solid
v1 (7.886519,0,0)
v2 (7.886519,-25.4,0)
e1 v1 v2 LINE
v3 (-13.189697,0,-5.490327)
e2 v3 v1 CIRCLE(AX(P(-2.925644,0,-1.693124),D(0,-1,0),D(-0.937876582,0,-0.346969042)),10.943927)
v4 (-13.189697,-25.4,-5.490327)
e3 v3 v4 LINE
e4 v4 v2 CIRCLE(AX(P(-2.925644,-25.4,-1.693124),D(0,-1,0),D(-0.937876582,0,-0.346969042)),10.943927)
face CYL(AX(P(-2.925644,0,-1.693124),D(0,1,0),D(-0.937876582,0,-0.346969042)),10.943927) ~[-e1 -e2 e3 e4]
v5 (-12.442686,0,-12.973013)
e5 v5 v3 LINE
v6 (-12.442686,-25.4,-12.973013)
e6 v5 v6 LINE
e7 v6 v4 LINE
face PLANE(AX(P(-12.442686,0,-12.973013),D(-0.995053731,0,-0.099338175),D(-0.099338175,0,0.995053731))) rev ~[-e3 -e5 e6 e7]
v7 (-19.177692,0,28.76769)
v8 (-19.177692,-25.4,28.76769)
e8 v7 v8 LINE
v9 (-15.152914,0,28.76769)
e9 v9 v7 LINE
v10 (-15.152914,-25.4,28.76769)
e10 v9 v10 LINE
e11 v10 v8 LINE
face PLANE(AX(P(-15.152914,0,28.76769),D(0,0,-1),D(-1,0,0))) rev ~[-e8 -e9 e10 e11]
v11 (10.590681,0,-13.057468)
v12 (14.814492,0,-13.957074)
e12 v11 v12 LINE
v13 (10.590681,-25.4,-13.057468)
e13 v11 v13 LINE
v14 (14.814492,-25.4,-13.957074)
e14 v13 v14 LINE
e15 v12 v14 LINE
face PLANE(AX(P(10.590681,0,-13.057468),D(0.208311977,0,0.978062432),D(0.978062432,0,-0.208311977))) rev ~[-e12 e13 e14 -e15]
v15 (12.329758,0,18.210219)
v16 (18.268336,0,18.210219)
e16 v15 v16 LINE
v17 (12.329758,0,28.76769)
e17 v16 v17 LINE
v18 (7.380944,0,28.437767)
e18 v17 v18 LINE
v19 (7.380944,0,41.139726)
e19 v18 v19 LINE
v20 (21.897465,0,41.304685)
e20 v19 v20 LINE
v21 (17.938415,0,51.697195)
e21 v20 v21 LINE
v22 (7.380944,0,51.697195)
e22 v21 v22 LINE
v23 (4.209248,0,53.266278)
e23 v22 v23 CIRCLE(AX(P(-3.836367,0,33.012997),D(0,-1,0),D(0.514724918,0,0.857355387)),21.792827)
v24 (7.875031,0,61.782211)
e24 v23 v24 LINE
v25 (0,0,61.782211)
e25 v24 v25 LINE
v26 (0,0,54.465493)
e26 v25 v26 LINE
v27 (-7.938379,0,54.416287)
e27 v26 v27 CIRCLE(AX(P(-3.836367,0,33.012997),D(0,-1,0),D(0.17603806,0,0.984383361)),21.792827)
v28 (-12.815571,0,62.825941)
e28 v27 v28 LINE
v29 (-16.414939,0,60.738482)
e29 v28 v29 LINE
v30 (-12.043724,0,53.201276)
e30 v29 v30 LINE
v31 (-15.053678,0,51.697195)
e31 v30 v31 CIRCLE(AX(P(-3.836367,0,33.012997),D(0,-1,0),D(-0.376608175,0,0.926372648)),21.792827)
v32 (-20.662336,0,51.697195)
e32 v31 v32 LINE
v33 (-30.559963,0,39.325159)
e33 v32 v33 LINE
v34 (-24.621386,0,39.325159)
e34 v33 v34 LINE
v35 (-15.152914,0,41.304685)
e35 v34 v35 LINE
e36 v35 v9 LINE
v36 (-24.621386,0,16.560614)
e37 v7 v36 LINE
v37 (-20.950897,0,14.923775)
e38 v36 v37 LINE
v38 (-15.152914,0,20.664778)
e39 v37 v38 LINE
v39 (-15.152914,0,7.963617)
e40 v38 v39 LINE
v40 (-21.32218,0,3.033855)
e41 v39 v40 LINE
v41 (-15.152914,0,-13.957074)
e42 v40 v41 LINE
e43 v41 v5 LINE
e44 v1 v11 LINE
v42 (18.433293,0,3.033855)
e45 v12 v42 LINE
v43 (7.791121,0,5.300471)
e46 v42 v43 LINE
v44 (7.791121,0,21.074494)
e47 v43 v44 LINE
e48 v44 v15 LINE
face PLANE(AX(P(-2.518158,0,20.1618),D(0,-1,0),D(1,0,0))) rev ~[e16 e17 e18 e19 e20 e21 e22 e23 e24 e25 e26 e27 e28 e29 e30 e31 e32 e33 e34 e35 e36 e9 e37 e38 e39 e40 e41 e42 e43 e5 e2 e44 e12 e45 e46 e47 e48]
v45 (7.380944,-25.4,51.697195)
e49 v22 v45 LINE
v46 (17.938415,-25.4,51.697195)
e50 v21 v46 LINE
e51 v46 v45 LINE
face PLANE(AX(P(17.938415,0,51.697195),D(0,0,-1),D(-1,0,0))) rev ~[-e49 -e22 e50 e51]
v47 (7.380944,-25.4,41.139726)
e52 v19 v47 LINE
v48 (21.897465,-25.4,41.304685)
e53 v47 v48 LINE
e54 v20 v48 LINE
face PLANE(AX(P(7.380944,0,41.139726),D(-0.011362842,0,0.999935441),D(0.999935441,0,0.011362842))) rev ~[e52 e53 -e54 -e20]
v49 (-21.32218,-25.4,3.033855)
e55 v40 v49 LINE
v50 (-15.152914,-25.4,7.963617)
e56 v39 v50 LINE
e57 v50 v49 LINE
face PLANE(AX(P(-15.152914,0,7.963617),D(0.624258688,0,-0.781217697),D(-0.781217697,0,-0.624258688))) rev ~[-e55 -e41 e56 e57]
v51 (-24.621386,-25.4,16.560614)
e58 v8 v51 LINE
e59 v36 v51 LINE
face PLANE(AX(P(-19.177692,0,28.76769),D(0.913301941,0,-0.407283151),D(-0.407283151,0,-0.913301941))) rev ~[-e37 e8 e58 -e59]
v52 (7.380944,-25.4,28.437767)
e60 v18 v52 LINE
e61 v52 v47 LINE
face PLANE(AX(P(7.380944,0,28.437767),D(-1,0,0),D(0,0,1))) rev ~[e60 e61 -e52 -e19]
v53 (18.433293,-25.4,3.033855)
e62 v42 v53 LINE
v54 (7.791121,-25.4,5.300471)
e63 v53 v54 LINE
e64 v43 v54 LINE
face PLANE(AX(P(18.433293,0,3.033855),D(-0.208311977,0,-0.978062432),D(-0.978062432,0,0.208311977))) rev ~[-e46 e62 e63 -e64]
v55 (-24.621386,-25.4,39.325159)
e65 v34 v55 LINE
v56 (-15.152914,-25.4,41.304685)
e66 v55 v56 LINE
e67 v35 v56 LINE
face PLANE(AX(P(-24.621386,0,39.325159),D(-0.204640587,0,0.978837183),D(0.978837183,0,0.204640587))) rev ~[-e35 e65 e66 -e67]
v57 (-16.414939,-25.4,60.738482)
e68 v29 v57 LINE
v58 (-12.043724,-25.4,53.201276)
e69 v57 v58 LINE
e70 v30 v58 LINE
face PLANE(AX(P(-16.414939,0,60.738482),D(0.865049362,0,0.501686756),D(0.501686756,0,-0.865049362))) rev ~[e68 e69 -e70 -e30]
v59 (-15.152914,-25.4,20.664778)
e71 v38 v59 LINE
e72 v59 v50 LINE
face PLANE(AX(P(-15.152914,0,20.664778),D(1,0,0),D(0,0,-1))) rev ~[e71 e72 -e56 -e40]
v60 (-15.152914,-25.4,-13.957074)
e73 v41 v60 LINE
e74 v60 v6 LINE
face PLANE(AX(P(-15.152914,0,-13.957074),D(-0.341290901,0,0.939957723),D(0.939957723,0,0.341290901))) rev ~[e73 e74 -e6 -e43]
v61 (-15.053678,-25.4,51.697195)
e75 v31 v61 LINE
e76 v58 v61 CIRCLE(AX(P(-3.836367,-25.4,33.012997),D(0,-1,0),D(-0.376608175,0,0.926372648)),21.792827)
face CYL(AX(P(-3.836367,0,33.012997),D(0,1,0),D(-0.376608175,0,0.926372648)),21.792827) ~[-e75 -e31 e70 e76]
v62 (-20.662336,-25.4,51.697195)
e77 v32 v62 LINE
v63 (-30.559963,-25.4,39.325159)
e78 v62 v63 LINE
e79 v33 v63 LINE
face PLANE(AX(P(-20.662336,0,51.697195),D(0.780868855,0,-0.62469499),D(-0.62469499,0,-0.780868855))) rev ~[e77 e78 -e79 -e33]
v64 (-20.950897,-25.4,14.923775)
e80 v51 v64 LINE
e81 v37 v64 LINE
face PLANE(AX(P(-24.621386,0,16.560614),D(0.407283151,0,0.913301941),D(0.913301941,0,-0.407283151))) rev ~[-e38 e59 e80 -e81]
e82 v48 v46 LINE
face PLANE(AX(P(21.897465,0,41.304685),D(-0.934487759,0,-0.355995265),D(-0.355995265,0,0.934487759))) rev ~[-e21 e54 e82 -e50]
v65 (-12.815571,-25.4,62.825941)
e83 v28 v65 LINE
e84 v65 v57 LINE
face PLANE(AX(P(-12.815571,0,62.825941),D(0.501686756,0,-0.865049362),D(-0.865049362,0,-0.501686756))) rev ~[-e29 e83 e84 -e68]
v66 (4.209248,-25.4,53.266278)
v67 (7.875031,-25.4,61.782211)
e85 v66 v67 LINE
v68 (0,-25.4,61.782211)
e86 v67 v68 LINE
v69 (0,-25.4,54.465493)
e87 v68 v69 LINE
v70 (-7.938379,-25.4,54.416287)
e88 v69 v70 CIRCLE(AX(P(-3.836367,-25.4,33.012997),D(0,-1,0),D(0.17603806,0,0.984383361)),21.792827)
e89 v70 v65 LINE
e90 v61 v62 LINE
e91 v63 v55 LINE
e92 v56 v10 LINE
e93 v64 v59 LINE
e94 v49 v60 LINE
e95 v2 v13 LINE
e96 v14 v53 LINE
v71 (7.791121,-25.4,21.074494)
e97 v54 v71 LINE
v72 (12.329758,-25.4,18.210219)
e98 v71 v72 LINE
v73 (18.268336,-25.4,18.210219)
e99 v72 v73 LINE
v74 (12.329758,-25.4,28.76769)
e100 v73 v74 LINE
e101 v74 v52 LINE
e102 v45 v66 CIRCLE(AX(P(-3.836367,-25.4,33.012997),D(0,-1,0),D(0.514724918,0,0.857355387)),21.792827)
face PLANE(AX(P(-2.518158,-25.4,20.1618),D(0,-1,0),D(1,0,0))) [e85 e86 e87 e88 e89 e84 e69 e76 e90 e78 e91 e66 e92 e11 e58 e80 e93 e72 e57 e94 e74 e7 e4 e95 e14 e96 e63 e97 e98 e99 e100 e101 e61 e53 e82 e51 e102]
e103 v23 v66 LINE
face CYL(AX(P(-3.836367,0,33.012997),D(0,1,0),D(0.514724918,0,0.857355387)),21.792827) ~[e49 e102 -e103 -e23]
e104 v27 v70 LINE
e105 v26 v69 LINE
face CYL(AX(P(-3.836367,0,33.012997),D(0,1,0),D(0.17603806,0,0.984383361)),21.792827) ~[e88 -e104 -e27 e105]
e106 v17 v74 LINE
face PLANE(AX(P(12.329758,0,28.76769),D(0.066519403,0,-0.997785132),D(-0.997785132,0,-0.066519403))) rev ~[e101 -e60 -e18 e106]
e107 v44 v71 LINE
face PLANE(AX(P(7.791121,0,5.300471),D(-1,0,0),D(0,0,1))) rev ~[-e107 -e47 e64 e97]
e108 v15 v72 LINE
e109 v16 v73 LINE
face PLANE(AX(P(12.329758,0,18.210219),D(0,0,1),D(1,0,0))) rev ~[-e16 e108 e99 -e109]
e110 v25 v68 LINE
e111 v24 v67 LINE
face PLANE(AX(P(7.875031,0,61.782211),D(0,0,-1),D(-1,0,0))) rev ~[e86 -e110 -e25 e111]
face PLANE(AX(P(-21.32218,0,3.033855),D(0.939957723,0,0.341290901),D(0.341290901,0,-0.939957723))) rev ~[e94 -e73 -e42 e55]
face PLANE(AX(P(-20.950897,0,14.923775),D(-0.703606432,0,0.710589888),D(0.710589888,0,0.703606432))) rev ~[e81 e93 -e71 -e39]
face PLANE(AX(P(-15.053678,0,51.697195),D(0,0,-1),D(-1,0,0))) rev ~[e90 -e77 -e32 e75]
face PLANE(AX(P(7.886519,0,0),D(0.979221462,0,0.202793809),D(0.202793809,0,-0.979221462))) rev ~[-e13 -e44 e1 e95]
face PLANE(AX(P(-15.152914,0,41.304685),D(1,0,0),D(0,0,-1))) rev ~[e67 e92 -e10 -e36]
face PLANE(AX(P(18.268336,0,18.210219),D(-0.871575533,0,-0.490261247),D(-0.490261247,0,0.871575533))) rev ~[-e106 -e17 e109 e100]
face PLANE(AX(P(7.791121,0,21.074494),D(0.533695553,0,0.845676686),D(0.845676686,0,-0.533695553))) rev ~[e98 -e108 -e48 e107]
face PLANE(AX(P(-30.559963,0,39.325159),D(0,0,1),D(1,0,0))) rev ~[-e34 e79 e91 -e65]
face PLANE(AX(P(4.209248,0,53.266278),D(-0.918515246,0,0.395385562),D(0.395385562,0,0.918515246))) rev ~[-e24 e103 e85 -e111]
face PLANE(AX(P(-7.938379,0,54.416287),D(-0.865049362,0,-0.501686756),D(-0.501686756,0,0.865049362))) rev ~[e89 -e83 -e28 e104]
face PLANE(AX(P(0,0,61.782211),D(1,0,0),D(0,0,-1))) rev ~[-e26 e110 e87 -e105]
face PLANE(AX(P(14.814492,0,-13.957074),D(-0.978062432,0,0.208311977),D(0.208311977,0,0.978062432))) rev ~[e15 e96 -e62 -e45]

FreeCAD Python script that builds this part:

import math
import FreeCAD as App
import Part
import Sketcher

V = App.Vector
Q = App.Units.Quantity

doc = App.newDocument("Part")
body = doc.addObject("PartDesign::Body", "Body")

# Sketch on XZ plane
sketch1 = body.newObject("Sketcher::SketchObject", "Sketch")
sketch1.AttachmentSupport = (doc.getObject("XZ_Plane"), [""])
sketch1.MapMode = "FlatFace"
sketch1.addGeometry(Part.LineSegment(V(-12.4, -13, 0), V(-13.2, -5.5, 0)), False)
sketch1.addGeometry(Part.ArcOfCircle(Part.Circle(V(-2.9, -1.7, 0), V(0, 0, 1), 10.9), math.radians(-160), math.radians(9)), False)
sketch1.addGeometry(Part.LineSegment(V(7.9, 0, 0), V(10.6, -13.1, 0)), False)
sketch1.addGeometry(Part.LineSegment(V(10.6, -13.1, 0), V(14.8, -14, 0)), False)
sketch1.addGeometry(Part.LineSegment(V(14.8, -14, 0), V(18.4, 3, 0)), False)
sketch1.addGeometry(Part.LineSegment(V(18.4, 3, 0), V(7.8, 5.3, 0)), False)
sketch1.addGeometry(Part.LineSegment(V(7.8, 5.3, 0), V(7.8, 21.1, 0)), False)
sketch1.addGeometry(Part.LineSegment(V(7.8, 21.1, 0), V(12.3, 18.2, 0)), False)
sketch1.addGeometry(Part.LineSegment(V(12.3, 18.2, 0), V(18.3, 18.2, 0)), False)
sketch1.addGeometry(Part.LineSegment(V(18.3, 18.2, 0), V(12.3, 28.8, 0)), False)
sketch1.addGeometry(Part.LineSegment(V(12.3, 28.8, 0), V(7.4, 28.4, 0)), False)
sketch1.addGeometry(Part.LineSegment(V(7.4, 28.4, 0), V(7.4, 41.1, 0)), False)
sketch1.addGeometry(Part.LineSegment(V(7.4, 41.1, 0), V(21.9, 41.3, 0)), False)
sketch1.addGeometry(Part.LineSegment(V(21.9, 41.3, 0), V(17.9, 51.7, 0)), False)
sketch1.addGeometry(Part.LineSegment(V(17.9, 51.7, 0), V(7.4, 51.7, 0)), False)
sketch1.addGeometry(Part.ArcOfCircle(Part.Circle(V(-3.8, 33, 0), V(0, 0, 1), 21.8), math.radians(59.02), math.radians(68.33)), False)
sketch1.addGeometry(Part.LineSegment(V(4.2, 53.3, 0), V(7.9, 61.8, 0)), False)
sketch1.addGeometry(Part.LineSegment(V(7.9, 61.8, 0), V(0, 61.8, 0)), False)
sketch1.addGeometry(Part.LineSegment(V(0, 61.8, 0), V(0, 54.5, 0)), False)
sketch1.addGeometry(Part.ArcOfCircle(Part.Circle(V(-3.8, 33, 0), V(0, 0, 1), 21.8), math.radians(80), math.radians(101)), False)
sketch1.addGeometry(Part.LineSegment(V(-7.9, 54.4, 0), V(-12.8, 62.8, 0)), False)
sketch1.addGeometry(Part.LineSegment(V(-12.8, 62.8, 0), V(-16.4, 60.7, 0)), False)
sketch1.addGeometry(Part.LineSegment(V(-16.4, 60.7, 0), V(-12, 53.2, 0)), False)
sketch1.addGeometry(Part.ArcOfCircle(Part.Circle(V(-3.8, 33, 0), V(0, 0, 1), 21.8), math.radians(112.12), math.radians(120.98)), False)
sketch1.addGeometry(Part.LineSegment(V(-15.1, 51.7, 0), V(-20.7, 51.7, 0)), False)
sketch1.addGeometry(Part.LineSegment(V(-20.7, 51.7, 0), V(-30.6, 39.3, 0)), False)
sketch1.addGeometry(Part.LineSegment(V(-30.6, 39.3, 0), V(-24.6, 39.3, 0)), False)
sketch1.addGeometry(Part.LineSegment(V(-24.6, 39.3, 0), V(-15.2, 41.3, 0)), False)
sketch1.addGeometry(Part.LineSegment(V(-15.2, 41.3, 0), V(-15.2, 28.8, 0)), False)
sketch1.addGeometry(Part.LineSegment(V(-15.2, 28.8, 0), V(-19.2, 28.8, 0)), False)
sketch1.addGeometry(Part.LineSegment(V(-19.2, 28.8, 0), V(-24.6, 16.6, 0)), False)
sketch1.addGeometry(Part.LineSegment(V(-24.6, 16.6, 0), V(-21, 14.9, 0)), False)
sketch1.addGeometry(Part.LineSegment(V(-21, 14.9, 0), V(-15.2, 20.7, 0)), False)
sketch1.addGeometry(Part.LineSegment(V(-15.2, 20.7, 0), V(-15.2, 8, 0)), False)
sketch1.addGeometry(Part.LineSegment(V(-15.2, 8, 0), V(-21.3, 3, 0)), False)
sketch1.addGeometry(Part.LineSegment(V(-21.3, 3, 0), V(-15.2, -14, 0)), False)
sketch1.addGeometry(Part.LineSegment(V(-15.2, -14, 0), V(-12.4, -13, 0)), False)
sketch1.addConstraint(Sketcher.Constraint("Coincident", 0, 2, 1, 1))
sketch1.addConstraint(Sketcher.Constraint("Coincident", 1, 2, 2, 1))
sketch1.addConstraint(Sketcher.Constraint("Coincident", 2, 2, 3, 1))
sketch1.addConstraint(Sketcher.Constraint("Coincident", 3, 2, 4, 1))
sketch1.addConstraint(Sketcher.Constraint("Coincident", 4, 2, 5, 1))
sketch1.addConstraint(Sketcher.Constraint("Coincident", 5, 2, 6, 1))
sketch1.addConstraint(Sketcher.Constraint("Coincident", 6, 2, 7, 1))
sketch1.addConstraint(Sketcher.Constraint("Coincident", 7, 2, 8, 1))
sketch1.addConstraint(Sketcher.Constraint("Coincident", 8, 2, 9, 1))
sketch1.addConstraint(Sketcher.Constraint("Coincident", 9, 2, 10, 1))
sketch1.addConstraint(Sketcher.Constraint("Coincident", 10, 2, 11, 1))
sketch1.addConstraint(Sketcher.Constraint("Coincident", 11, 2, 12, 1))
sketch1.addConstraint(Sketcher.Constraint("Coincident", 12, 2, 13, 1))
sketch1.addConstraint(Sketcher.Constraint("Coincident", 13, 2, 14, 1))
sketch1.addConstraint(Sketcher.Constraint("Coincident", 14, 2, 15, 1))
sketch1.addConstraint(Sketcher.Constraint("Coincident", 15, 2, 16, 1))
sketch1.addConstraint(Sketcher.Constraint("Coincident", 16, 2, 17, 1))
sketch1.addConstraint(Sketcher.Constraint("Coincident", 17, 2, 18, 1))
sketch1.addConstraint(Sketcher.Constraint("Coincident", 18, 2, 19, 1))
sketch1.addConstraint(Sketcher.Constraint("Coincident", 19, 2, 20, 1))
sketch1.addConstraint(Sketcher.Constraint("Coincident", 20, 2, 21, 1))
sketch1.addConstraint(Sketcher.Constraint("Coincident", 21, 2, 22, 1))
sketch1.addConstraint(Sketcher.Constraint("Coincident", 22, 2, 23, 1))
sketch1.addConstraint(Sketcher.Constraint("Coincident", 23, 2, 24, 1))
sketch1.addConstraint(Sketcher.Constraint("Coincident", 24, 2, 25, 1))
sketch1.addConstraint(Sketcher.Constraint("Coincident", 25, 2, 26, 1))
sketch1.addConstraint(Sketcher.Constraint("Coincident", 26, 2, 27, 1))
sketch1.addConstraint(Sketcher.Constraint("Coincident", 27, 2, 28, 1))
sketch1.addConstraint(Sketcher.Constraint("Coincident", 28, 2, 29, 1))
sketch1.addConstraint(Sketcher.Constraint("Coincident", 29, 2, 30, 1))
sketch1.addConstraint(Sketcher.Constraint("Coincident", 30, 2, 31, 1))
sketch1.addConstraint(Sketcher.Constraint("Coincident", 31, 2, 32, 1))
sketch1.addConstraint(Sketcher.Constraint("Coincident", 32, 2, 33, 1))
sketch1.addConstraint(Sketcher.Constraint("Coincident", 33, 2, 34, 1))
sketch1.addConstraint(Sketcher.Constraint("Coincident", 34, 2, 35, 1))
sketch1.addConstraint(Sketcher.Constraint("Coincident", 35, 2, 36, 1))
sketch1.addConstraint(Sketcher.Constraint("Coincident", 36, 2, 0, 1))
sketch1.addConstraint(Sketcher.Constraint("Vertical", 6))
sketch1.addConstraint(Sketcher.Constraint("Horizontal", 8))
sketch1.addConstraint(Sketcher.Constraint("Vertical", 11))
sketch1.addConstraint(Sketcher.Constraint("Horizontal", 14))
sketch1.addConstraint(Sketcher.Constraint("Horizontal", 17))
sketch1.addConstraint(Sketcher.Constraint("Vertical", 18))
sketch1.addConstraint(Sketcher.Constraint("Horizontal", 24))
sketch1.addConstraint(Sketcher.Constraint("Horizontal", 26))
sketch1.addConstraint(Sketcher.Constraint("Vertical", 28))
sketch1.addConstraint(Sketcher.Constraint("Horizontal", 29))
sketch1.addConstraint(Sketcher.Constraint("Vertical", 33))
sketch1.addConstraint(Sketcher.Constraint("Coincident", 19, 3, 15, 3))
sketch1.addConstraint(Sketcher.Constraint("Coincident", 23, 3, 15, 3))
sketch1.addConstraint(Sketcher.Constraint("Equal", 15, 19))
sketch1.addConstraint(Sketcher.Constraint("Equal", 19, 23))
sketch1.addConstraint(Sketcher.Constraint("PointOnObject", 1, 2, -1))
sketch1.addConstraint(Sketcher.Constraint("PointOnObject", 17, 2, -2))
sketch1.addConstraint(Sketcher.Constraint("Perpendicular", 3, 4))
sketch1.addConstraint(Sketcher.Constraint("Perpendicular", 4, 5))
sketch1.addConstraint(Sketcher.Constraint("Perpendicular", 20, 21))
sketch1.addConstraint(Sketcher.Constraint("Perpendicular", 21, 22))
sketch1.addConstraint(Sketcher.Constraint("Perpendicular", 30, 31))
sketch1.addConstraint(Sketcher.Constraint("Perpendicular", 35, 36))
sketch1.addConstraint(Sketcher.Constraint("Horizontal", 14, 2, 23, 2))
sketch1.addConstraint(Sketcher.Constraint("Horizontal", 12, 2, 27, 2))
sketch1.addConstraint(Sketcher.Constraint("Horizontal", 9, 2, 28, 2))
sketch1.addConstraint(Sketcher.Constraint("Horizontal", 4, 2, 34, 2))
sketch1.addConstraint(Sketcher.Constraint("Horizontal", 3, 2, 35, 2))
sketch1.addConstraint(Sketcher.Constraint("Vertical", 7, 2, 9, 2))
sketch1.addConstraint(Sketcher.Constraint("Vertical", 11, 2, 14, 2))
sketch1.addConstraint(Sketcher.Constraint("Vertical", 26, 2, 30, 2))
sketch1.addConstraint(Sketcher.Constraint("Vertical", 28, 2, 32, 2))
sketch1.addConstraint(Sketcher.Constraint("Vertical", 33, 2, 35, 2))
sketch1.addConstraint(Sketcher.Constraint("Equal", 8, 26))
sketch1.addConstraint(Sketcher.Constraint("Radius", 1, Q("10.943927 mm")))
sketch1.addConstraint(Sketcher.Constraint("Radius", 15, Q("21.792827 mm")))
sketch1.addConstraint(Sketcher.Constraint("Distance", 10, Q("4.959799 mm")))
sketch1.addConstraint(Sketcher.Constraint("DistanceX", 14, 2, 14, 1, Q("10.55747 mm")))
sketch1.addConstraint(Sketcher.Constraint("DistanceX", 17, 2, 17, 1, Q("7.875031 mm")))
sketch1.addConstraint(Sketcher.Constraint("DistanceX", 29, 2, 29, 1, Q("4.024778 mm")))
sketch1.addConstraint(Sketcher.Constraint("DistanceY", 11, 1, 11, 2, Q("12.701958 mm")))
sketch1.addConstraint(Sketcher.Constraint("DistanceY", 33, 2, 33, 1, Q("12.70116 mm")))
sketch1.addConstraint(Sketcher.Constraint("DistanceX", 3, 2, 4, 2, Q("3.618802 mm")))
sketch1.addConstraint(Sketcher.Constraint("DistanceX", 5, 2, 1, 2, Q("0.095398 mm")))
sketch1.addConstraint(Sketcher.Constraint("DistanceY", 14, 2, 18, 2, Q("2.768299 mm")))
sketch1.addConstraint(Sketcher.Constraint("DistanceX", 23, 2, 19, 2, Q("7.115299 mm")))
sketch1.addConstraint(Sketcher.Constraint("DistanceX", 31, 2, 0, 2, Q("7.7612 mm")))
sketch1.addConstraint(Sketcher.Constraint("DistanceY", 1, 3, 31, 2, Q("16.616899 mm")))
sketch1.addConstraint(Sketcher.Constraint("Distance", 0, Q("7.51988 mm")))
sketch1.addConstraint(Sketcher.Constraint("Distance", 2, Q("13.334541 mm")))
sketch1.addConstraint(Sketcher.Constraint("Distance", 3, Q("4.318549 mm")))
sketch1.addConstraint(Sketcher.Constraint("Distance", 4, Q("17.372029 mm")))
sketch1.addConstraint(Sketcher.Constraint("Distance", 7, Q("5.366871 mm")))
sketch1.addConstraint(Sketcher.Constraint("Distance", 12, Q("14.517458 mm")))
sketch1.addConstraint(Sketcher.Constraint("Distance", 20, Q("9.721589 mm")))
sketch1.addConstraint(Sketcher.Constraint("Distance", 21, Q("4.160881 mm")))
sketch1.addConstraint(Sketcher.Constraint("Distance", 30, Q("13.365871 mm")))
sketch1.addConstraint(Sketcher.Constraint("Distance", 31, Q("4.018922 mm")))
sketch1.addConstraint(Sketcher.Constraint("Distance", 35, Q("18.076269 mm")))
sketch1.addConstraint(Sketcher.Constraint("Distance", 36, Q("2.883351 mm")))
sketch1.addConstraint(Sketcher.Constraint("DistanceX", 8, 1, 8, 2, Q("5.938577 mm")))
sketch1.addConstraint(Sketcher.Constraint("DistanceX", 24, 2, 24, 1, Q("5.608657 mm")))
sketch1.addConstraint(Sketcher.Constraint("DistanceY", 6, 1, 6, 2, Q("15.774024 mm")))
sketch1.addConstraint(Sketcher.Constraint("DistanceY", 18, 2, 18, 1, Q("7.316718 mm")))
sketch1.addConstraint(Sketcher.Constraint("DistanceY", 28, 2, 28, 1, Q("12.536995 mm")))
sketch1.addConstraint(Sketcher.Constraint("DistanceX", -1, 1, 1, 2, Q("7.886519 mm")))
sketch1.addConstraint(Sketcher.Constraint("DistanceX", -1, 1, 2, 2, Q("10.590681 mm")))
sketch1.addConstraint(Sketcher.Constraint("DistanceX", -1, 1, 7, 2, Q("12.329758 mm")))
sketch1.addConstraint(Sketcher.Constraint("DistanceY", -1, 1, 9, 2, Q("28.76769 mm")))
sketch1.addConstraint(Sketcher.Constraint("DistanceX", -1, 1, 15, 2, Q("4.209248 mm")))
sketch1.addConstraint(Sketcher.Constraint("DistanceY", -1, 1, 16, 2, Q("61.782211 mm")))
sketch1.addConstraint(Sketcher.Constraint("DistanceX", 19, 2, -1, 1, Q("7.938379 mm")))
sketch1.addConstraint(Sketcher.Constraint("DistanceX", 20, 2, -1, 1, Q("12.815571 mm")))
sketch1.addConstraint(Sketcher.Constraint("DistanceY", -1, 1, 25, 2, Q("39.325159 mm")))
sketch1.addConstraint(Sketcher.Constraint("DistanceX", 34, 2, -1, 1, Q("21.32218 mm")))
sketch1.addConstraint(Sketcher.Constraint("DistanceY", 32, 2, 23, 3, Q("12.348219 mm")))
pad1 = body.newObject("PartDesign::Pad", "Pad")
pad1.Profile = sketch1
pad1.Length = Q("1 in")

doc.recompute()
